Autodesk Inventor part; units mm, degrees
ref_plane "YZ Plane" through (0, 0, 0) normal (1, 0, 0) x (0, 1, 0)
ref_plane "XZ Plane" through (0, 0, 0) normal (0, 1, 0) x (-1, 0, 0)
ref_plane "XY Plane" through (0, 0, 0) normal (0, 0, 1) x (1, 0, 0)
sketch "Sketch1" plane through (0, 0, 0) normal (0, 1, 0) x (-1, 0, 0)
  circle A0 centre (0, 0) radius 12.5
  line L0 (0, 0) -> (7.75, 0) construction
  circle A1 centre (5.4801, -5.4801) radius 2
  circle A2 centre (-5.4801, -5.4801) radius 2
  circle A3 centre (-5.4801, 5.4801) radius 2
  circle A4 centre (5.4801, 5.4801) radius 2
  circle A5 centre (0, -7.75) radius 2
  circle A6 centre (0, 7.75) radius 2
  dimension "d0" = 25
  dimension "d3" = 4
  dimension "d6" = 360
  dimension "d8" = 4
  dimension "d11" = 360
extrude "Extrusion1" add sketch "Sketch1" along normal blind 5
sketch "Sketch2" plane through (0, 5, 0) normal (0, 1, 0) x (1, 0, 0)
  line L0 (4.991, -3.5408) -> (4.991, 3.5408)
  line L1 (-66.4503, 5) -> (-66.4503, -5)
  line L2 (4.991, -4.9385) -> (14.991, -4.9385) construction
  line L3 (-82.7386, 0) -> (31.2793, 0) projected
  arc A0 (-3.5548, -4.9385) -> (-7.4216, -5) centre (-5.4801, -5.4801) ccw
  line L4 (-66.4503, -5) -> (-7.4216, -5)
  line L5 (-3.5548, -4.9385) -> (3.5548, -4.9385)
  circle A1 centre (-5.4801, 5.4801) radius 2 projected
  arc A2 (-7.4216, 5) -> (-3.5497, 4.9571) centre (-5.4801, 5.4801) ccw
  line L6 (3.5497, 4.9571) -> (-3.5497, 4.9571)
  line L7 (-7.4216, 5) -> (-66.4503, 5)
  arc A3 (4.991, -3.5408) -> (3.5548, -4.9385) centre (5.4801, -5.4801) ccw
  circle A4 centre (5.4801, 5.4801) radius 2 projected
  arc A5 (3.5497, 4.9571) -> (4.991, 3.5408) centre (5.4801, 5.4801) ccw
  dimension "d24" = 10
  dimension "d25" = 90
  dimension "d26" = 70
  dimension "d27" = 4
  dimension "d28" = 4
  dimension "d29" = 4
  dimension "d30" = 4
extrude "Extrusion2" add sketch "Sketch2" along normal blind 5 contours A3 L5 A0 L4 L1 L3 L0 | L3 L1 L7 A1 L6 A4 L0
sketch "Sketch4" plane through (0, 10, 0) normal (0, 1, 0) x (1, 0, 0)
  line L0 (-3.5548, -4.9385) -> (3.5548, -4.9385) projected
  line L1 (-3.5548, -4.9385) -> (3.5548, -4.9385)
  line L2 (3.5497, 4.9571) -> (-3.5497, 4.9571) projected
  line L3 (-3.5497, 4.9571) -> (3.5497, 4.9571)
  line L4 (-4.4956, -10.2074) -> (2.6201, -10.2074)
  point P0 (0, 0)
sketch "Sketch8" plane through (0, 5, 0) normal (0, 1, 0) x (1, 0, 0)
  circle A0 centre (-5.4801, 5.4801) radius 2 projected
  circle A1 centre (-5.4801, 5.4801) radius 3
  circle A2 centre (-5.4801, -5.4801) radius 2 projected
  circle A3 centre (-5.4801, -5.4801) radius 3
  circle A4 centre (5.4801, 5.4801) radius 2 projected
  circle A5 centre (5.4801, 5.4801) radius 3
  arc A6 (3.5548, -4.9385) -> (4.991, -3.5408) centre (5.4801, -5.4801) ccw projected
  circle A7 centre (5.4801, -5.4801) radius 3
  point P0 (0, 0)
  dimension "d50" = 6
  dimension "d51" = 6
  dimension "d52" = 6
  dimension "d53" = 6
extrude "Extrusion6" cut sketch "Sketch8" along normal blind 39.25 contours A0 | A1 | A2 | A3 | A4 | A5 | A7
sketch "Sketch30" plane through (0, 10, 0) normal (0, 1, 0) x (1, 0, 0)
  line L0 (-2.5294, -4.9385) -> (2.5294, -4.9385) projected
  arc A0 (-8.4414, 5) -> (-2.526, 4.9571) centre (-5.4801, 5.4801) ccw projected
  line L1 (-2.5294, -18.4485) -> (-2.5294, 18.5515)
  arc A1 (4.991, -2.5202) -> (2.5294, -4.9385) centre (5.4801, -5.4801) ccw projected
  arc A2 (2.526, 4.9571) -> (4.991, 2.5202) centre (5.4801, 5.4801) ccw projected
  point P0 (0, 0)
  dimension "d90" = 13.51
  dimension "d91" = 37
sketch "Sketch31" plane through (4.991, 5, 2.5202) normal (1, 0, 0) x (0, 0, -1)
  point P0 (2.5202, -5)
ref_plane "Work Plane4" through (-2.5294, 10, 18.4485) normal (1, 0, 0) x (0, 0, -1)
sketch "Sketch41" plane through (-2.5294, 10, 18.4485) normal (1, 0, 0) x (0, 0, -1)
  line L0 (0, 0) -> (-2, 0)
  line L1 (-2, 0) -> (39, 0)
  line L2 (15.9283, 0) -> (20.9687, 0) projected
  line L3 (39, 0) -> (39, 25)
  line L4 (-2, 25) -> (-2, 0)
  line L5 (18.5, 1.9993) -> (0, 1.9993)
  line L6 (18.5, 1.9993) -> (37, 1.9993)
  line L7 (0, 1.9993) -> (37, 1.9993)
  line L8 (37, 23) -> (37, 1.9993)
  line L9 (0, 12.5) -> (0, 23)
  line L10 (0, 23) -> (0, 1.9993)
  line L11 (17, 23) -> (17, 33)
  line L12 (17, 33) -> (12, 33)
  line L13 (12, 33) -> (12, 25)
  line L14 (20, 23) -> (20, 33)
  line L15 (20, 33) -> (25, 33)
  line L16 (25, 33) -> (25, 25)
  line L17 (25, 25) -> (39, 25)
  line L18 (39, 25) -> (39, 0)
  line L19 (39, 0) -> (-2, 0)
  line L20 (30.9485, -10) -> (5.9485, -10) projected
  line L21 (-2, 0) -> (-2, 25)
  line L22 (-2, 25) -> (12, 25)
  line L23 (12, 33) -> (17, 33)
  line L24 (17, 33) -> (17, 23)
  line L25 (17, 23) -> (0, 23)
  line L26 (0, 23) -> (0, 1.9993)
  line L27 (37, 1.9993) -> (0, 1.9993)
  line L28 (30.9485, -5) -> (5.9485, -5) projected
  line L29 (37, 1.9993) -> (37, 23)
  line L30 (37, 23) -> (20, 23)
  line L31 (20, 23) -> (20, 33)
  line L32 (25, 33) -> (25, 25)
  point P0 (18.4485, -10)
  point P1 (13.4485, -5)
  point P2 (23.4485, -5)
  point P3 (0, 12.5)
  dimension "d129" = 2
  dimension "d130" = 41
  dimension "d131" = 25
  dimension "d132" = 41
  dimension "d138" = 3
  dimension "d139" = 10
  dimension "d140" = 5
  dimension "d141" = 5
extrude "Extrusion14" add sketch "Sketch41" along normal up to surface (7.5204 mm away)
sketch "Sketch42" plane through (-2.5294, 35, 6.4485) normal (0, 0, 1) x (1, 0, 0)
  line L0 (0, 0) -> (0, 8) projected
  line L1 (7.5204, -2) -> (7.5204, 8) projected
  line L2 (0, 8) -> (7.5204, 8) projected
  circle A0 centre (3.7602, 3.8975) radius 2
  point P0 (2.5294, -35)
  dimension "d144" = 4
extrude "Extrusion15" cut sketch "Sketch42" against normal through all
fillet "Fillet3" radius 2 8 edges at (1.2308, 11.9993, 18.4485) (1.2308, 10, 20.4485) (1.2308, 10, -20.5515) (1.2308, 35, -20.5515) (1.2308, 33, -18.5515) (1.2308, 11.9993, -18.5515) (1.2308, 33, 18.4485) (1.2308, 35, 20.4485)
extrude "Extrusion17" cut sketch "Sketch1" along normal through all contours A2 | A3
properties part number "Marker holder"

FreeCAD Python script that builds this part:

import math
import FreeCAD as App
import Part
import Sketcher

V = App.Vector
Q = App.Units.Quantity


def edges_at(feature, points):
    """Names of the edges that pass closest to the given points."""
    edges = feature.Shape.Edges
    near = lambda p: min(range(len(edges)), key=lambda i: edges[i].distToShape(Part.Vertex(*p))[0])
    return sorted({f"Edge{near(p) + 1}" for p in points})

doc = App.newDocument("Part")
body = doc.addObject("PartDesign::Body", "Body")

# Sketch on XZ plane
sketch1 = doc.addObject("Sketcher::SketchObject", "Sketch")
body.addObject(sketch1)
sketch1.AttachmentSupport = (doc.XZ_Plane, [""])
sketch1.MapMode = "FlatFace"
sketch1.addGeometry(Part.Circle(V(0, 0, 0), V(0, 0, 1), 12.5), False)
sketch1.addGeometry(Part.Circle(V(5.5, -5.5, 0), V(0, 0, 1), 2), False)
sketch1.addGeometry(Part.Circle(V(0, -7.8, 0), V(0, 0, 1), 2), False)
sketch1.addGeometry(Part.Circle(V(-5.5, -5.5, 0), V(0, 0, 1), 2), False)
sketch1.addGeometry(Part.Circle(V(5.5, 5.5, 0), V(0, 0, 1), 2), False)
sketch1.addGeometry(Part.Circle(V(-5.5, 5.5, 0), V(0, 0, 1), 2), False)
sketch1.addGeometry(Part.Circle(V(0, 7.8, 0), V(0, 0, 1), 2), False)
sketch1.addConstraint(Sketcher.Constraint("Coincident", 0, 3, -1, 1))
sketch1.addConstraint(Sketcher.Constraint("Equal", 1, 2))
sketch1.addConstraint(Sketcher.Constraint("Equal", 2, 3))
sketch1.addConstraint(Sketcher.Constraint("Equal", 3, 4))
sketch1.addConstraint(Sketcher.Constraint("Equal", 4, 5))
sketch1.addConstraint(Sketcher.Constraint("Equal", 5, 6))
sketch1.addConstraint(Sketcher.Constraint("Symmetric", 3, 3, 4, 3, -1, 1))
sketch1.addConstraint(Sketcher.Constraint("Symmetric", 1, 3, 5, 3, -1, 1))
sketch1.addConstraint(Sketcher.Constraint("Symmetric", 2, 3, 6, 3, -1, 1))
sketch1.addConstraint(Sketcher.Constraint("Symmetric", 1, 3, 3, 3, -2))
sketch1.addConstraint(Sketcher.Constraint("PointOnObject", 2, 3, -2))
sketch1.addConstraint(Sketcher.Constraint("Diameter", 0, Q("25 mm")))
sketch1.addConstraint(Sketcher.Constraint("Diameter", 1, Q("4 mm")))
sketch1.addConstraint(Sketcher.Constraint("DistanceX", -1, 1, 1, 3, Q("5.48 mm")))
sketch1.addConstraint(Sketcher.Constraint("DistanceY", 1, 3, -1, 1, Q("5.48 mm")))
sketch1.addConstraint(Sketcher.Constraint("DistanceY", 2, 3, -1, 1, Q("7.75 mm")))
pad1 = doc.addObject("PartDesign::Pad", "Pad")
body.addObject(pad1)
pad1.Profile = sketch1
pad1.Length = 5
pad1.Reversed = True

# Sketch on XZ plane
sketch2 = doc.addObject("Sketcher::SketchObject", "Sketch001")
body.addObject(sketch2)
sketch2.AttachmentSupport = (doc.XZ_Plane, [""])
sketch2.MapMode = "FlatFace"
sketch2.AttachmentOffset = App.Placement(V(0, 0, -5), App.Rotation())
sketch2.addGeometry(Part.ArcOfCircle(Part.Circle(V(5.5, 5.5, 0), V(0, 0, 1), 2), math.radians(-164), math.radians(-104)), False)
sketch2.addGeometry(Part.LineSegment(V(5, 3.5, 0), V(5, -3.5, 0)), False)
sketch2.addGeometry(Part.ArcOfCircle(Part.Circle(V(5.5, -5.5, 0), V(0, 0, 1), 2), math.radians(104), math.radians(165)), False)
sketch2.addGeometry(Part.LineSegment(V(3.5, -5, 0), V(-3.5, -5, 0)), False)
sketch2.addGeometry(Part.ArcOfCircle(Part.Circle(V(-5.5, -5.5, 0), V(0, 0, 1), 2), math.radians(15), math.radians(166)), False)
sketch2.addGeometry(Part.LineSegment(V(-7.4, -5, 0), V(-66.5, -5, 0)), False)
sketch2.addGeometry(Part.LineSegment(V(-66.5, -5, 0), V(-66.5, 5, 0)), False)
sketch2.addGeometry(Part.LineSegment(V(-66.5, 5, 0), V(-7.4, 5, 0)), False)
sketch2.addGeometry(Part.ArcOfCircle(Part.Circle(V(-5.5, 5.5, 0), V(0, 0, 1), 2), math.radians(-166), math.radians(-16)), False)
sketch2.addGeometry(Part.LineSegment(V(-3.6, 4.9, 0), V(3.6, 4.9, 0)), False)
sketch2.addConstraint(Sketcher.Constraint("Coincident", 0, 2, 1, 1))
sketch2.addConstraint(Sketcher.Constraint("Coincident", 1, 2, 2, 1))
sketch2.addConstraint(Sketcher.Constraint("Coincident", 2, 2, 3, 1))
sketch2.addConstraint(Sketcher.Constraint("Coincident", 3, 2, 4, 1))
sketch2.addConstraint(Sketcher.Constraint("Coincident", 4, 2, 5, 1))
sketch2.addConstraint(Sketcher.Constraint("Coincident", 5, 2, 6, 1))
sketch2.addConstraint(Sketcher.Constraint("Coincident", 6, 2, 7, 1))
sketch2.addConstraint(Sketcher.Constraint("Coincident", 7, 2, 8, 1))
sketch2.addConstraint(Sketcher.Constraint("Coincident", 8, 2, 9, 1))
sketch2.addConstraint(Sketcher.Constraint("Coincident", 9, 2, 0, 1))
sketch2.addConstraint(Sketcher.Constraint("Vertical", 1))
sketch2.addConstraint(Sketcher.Constraint("Horizontal", 3))
sketch2.addConstraint(Sketcher.Constraint("Horizontal", 5))
sketch2.addConstraint(Sketcher.Constraint("Vertical", 6))
sketch2.addConstraint(Sketcher.Constraint("Horizontal", 7))
sketch2.addConstraint(Sketcher.Constraint("Horizontal", 9))
sketch2.addConstraint(Sketcher.Constraint("Equal", 0, 2))
sketch2.addConstraint(Sketcher.Constraint("Equal", 2, 4))
sketch2.addConstraint(Sketcher.Constraint("Equal", 4, 8))
sketch2.addConstraint(Sketcher.Constraint("Symmetric", 0, 3, 4, 3, -1, 1))
sketch2.addConstraint(Sketcher.Constraint("Symmetric", 2, 3, 8, 3, -1, 1))
sketch2.addConstraint(Sketcher.Constraint("Symmetric", 2, 3, 4, 3, -2))
sketch2.addConstraint(Sketcher.Constraint("Vertical", 4, 2, 7, 2))
sketch2.addConstraint(Sketcher.Constraint("Radius", 0, Q("2 mm")))
sketch2.addConstraint(Sketcher.Constraint("DistanceY", 6, 1, 6, 2, Q("10 mm")))
sketch2.addConstraint(Sketcher.Constraint("DistanceX", 5, 2, 2, 2, Q("70 mm")))
sketch2.addConstraint(Sketcher.Constraint("DistanceX", -1, 1, 0, 3, Q("5.48 mm")))
sketch2.addConstraint(Sketcher.Constraint("DistanceY", -1, 1, 0, 3, Q("5.48 mm")))
sketch2.addConstraint(Sketcher.Constraint("DistanceX", 3, 2, 3, 1, Q("7.0994 mm")))
sketch2.addConstraint(Sketcher.Constraint("DistanceX", 9, 1, 9, 2, Q("7.1096 mm")))
sketch2.addConstraint(Sketcher.Constraint("DistanceY", 1, 2, 1, 1, Q("7.0816 mm")))
pad2 = doc.addObject("PartDesign::Pad", "Pad001")
body.addObject(pad2)
pad2.Profile = sketch2
pad2.Length = 5
pad2.Reversed = True

# Sketch on XZ plane
sketch3 = doc.addObject("Sketcher::SketchObject", "Sketch002")
body.addObject(sketch3)
sketch3.AttachmentSupport = (doc.XZ_Plane, [""])
sketch3.MapMode = "FlatFace"
sketch3.AttachmentOffset = App.Placement(V(0, 0, -5), App.Rotation())
sketch3.addGeometry(Part.Circle(V(-5.5, -5.5, 0), V(0, 0, 1), 3), False)
sketch3.addGeometry(Part.Circle(V(-5.5, 5.5, 0), V(0, 0, 1), 3), False)
sketch3.addGeometry(Part.Circle(V(5.5, -5.5, 0), V(0, 0, 1), 3), False)
sketch3.addGeometry(Part.Circle(V(5.5, 5.5, 0), V(0, 0, 1), 3), False)
sketch3.addConstraint(Sketcher.Constraint("Equal", 0, 1))
sketch3.addConstraint(Sketcher.Constraint("Equal", 1, 2))
sketch3.addConstraint(Sketcher.Constraint("Equal", 2, 3))
sketch3.addConstraint(Sketcher.Constraint("Symmetric", 1, 3, 2, 3, -1, 1))
sketch3.addConstraint(Sketcher.Constraint("Symmetric", 0, 3, 3, 3, -1, 1))
sketch3.addConstraint(Sketcher.Constraint("Symmetric", 0, 3, 2, 3, -2))
sketch3.addConstraint(Sketcher.Constraint("Diameter", 0, Q("6 mm")))
sketch3.addConstraint(Sketcher.Constraint("DistanceX", 0, 3, -1, 1, Q("5.48 mm")))
sketch3.addConstraint(Sketcher.Constraint("DistanceY", 0, 3, -1, 1, Q("5.48 mm")))
pocket1 = doc.addObject("PartDesign::Pocket", "Pocket")
body.addObject(pocket1)
pocket1.Profile = sketch3
pocket1.Length = 39.25

# Sketch on YZ plane
sketch4 = doc.addObject("Sketcher::SketchObject", "Sketch003")
body.addObject(sketch4)
sketch4.AttachmentSupport = (doc.YZ_Plane, [""])
sketch4.MapMode = "FlatFace"
sketch4.AttachmentOffset = App.Placement(V(0, 0, -2.5294), App.Rotation())
sketch4.addGeometry(Part.LineSegment(V(10, 20, 0), V(10, -21, 0)), False)
sketch4.addGeometry(Part.LineSegment(V(10, -21, 0), V(35, -21, 0)), False)
sketch4.addGeometry(Part.LineSegment(V(35, -21, 0), V(35, -7, 0)), False)
sketch4.addGeometry(Part.LineSegment(V(35, -7, 0), V(43, -7, 0)), False)
sketch4.addGeometry(Part.LineSegment(V(43, -7, 0), V(43, -2, 0)), False)
sketch4.addGeometry(Part.LineSegment(V(43, -2, 0), V(33, -2, 0)), False)
sketch4.addGeometry(Part.LineSegment(V(33, -2, 0), V(33, -19, 0)), False)
sketch4.addGeometry(Part.LineSegment(V(33, -19, 0), V(12, -19, 0)), False)
sketch4.addGeometry(Part.LineSegment(V(12, -19, 0), V(12, 18, 0)), False)
sketch4.addGeometry(Part.LineSegment(V(12, 18, 0), V(33, 18, 0)), False)
sketch4.addGeometry(Part.LineSegment(V(33, 18, 0), V(33, 1, 0)), False)
sketch4.addGeometry(Part.LineSegment(V(33, 1, 0), V(43, 1, 0)), False)
sketch4.addGeometry(Part.LineSegment(V(43, 1, 0), V(43, 6, 0)), False)
sketch4.addGeometry(Part.LineSegment(V(43, 6, 0), V(35, 6, 0)), False)
sketch4.addGeometry(Part.LineSegment(V(35, 6, 0), V(35, 20, 0)), False)
sketch4.addGeometry(Part.LineSegment(V(35, 20, 0), V(10, 20, 0)), False)
sketch4.addConstraint(Sketcher.Constraint("Coincident", 0, 2, 1, 1))
sketch4.addConstraint(Sketcher.Constraint("Coincident", 1, 2, 2, 1))
sketch4.addConstraint(Sketcher.Constraint("Coincident", 2, 2, 3, 1))
sketch4.addConstraint(Sketcher.Constraint("Coincident", 3, 2, 4, 1))
sketch4.addConstraint(Sketcher.Constraint("Coincident", 4, 2, 5, 1))
sketch4.addConstraint(Sketcher.Constraint("Coincident", 5, 2, 6, 1))
sketch4.addConstraint(Sketcher.Constraint("Coincident", 6, 2, 7, 1))
sketch4.addConstraint(Sketcher.Constraint("Coincident", 7, 2, 8, 1))
sketch4.addConstraint(Sketcher.Constraint("Coincident", 8, 2, 9, 1))
sketch4.addConstraint(Sketcher.Constraint("Coincident", 9, 2, 10, 1))
sketch4.addConstraint(Sketcher.Constraint("Coincident", 10, 2, 11, 1))
sketch4.addConstraint(Sketcher.Constraint("Coincident", 11, 2, 12, 1))
sketch4.addConstraint(Sketcher.Constraint("Coincident", 12, 2, 13, 1))
sketch4.addConstraint(Sketcher.Constraint("Coincident", 13, 2, 14, 1))
sketch4.addConstraint(Sketcher.Constraint("Coincident", 14, 2, 15, 1))
sketch4.addConstraint(Sketcher.Constraint("Coincident", 15, 2, 0, 1))
sketch4.addConstraint(Sketcher.Constraint("Vertical", 0))
sketch4.addConstraint(Sketcher.Constraint("Horizontal", 1))
sketch4.addConstraint(Sketcher.Constraint("Vertical", 2))
sketch4.addConstraint(Sketcher.Constraint("Horizontal", 3))
sketch4.addConstraint(Sketcher.Constraint("Vertical", 4))
sketch4.addConstraint(Sketcher.Constraint("Horizontal", 5))
sketch4.addConstraint(Sketcher.Constraint("Vertical", 6))
sketch4.addConstraint(Sketcher.Constraint("Horizontal", 7))
sketch4.addConstraint(Sketcher.Constraint("Vertical", 8))
sketch4.addConstraint(Sketcher.Constraint("Horizontal", 9))
sketch4.addConstraint(Sketcher.Constraint("Vertical", 10))
sketch4.addConstraint(Sketcher.Constraint("Horizontal", 11))
sketch4.addConstraint(Sketcher.Constraint("Vertical", 12))
sketch4.addConstraint(Sketcher.Constraint("Horizontal", 13))
sketch4.addConstraint(Sketcher.Constraint("Vertical", 14))
sketch4.addConstraint(Sketcher.Constraint("Horizontal", 15))
sketch4.addConstraint(Sketcher.Constraint("Vertical", 6, 2, 9, 2))
sketch4.addConstraint(Sketcher.Constraint("Vertical", 4, 2, 11, 2))
sketch4.addConstraint(Sketcher.Constraint("Vertical", 2, 2, 13, 2))
sketch4.addConstraint(Sketcher.Constraint("Equal", 6, 10))
sketch4.addConstraint(Sketcher.Constraint("Equal", 4, 12))
sketch4.addConstraint(Sketcher.Constraint("Equal", 2, 14))
sketch4.addConstraint(Sketcher.Constraint("DistanceX", 1, 1, 1, 2, Q("25 mm")))
sketch4.addConstraint(Sketcher.Constraint("DistanceX", 5, 2, 5, 1, Q("10 mm")))
sketch4.addConstraint(Sketcher.Constraint("DistanceY", 0, 2, 0, 1, Q("41 mm")))
sketch4.addConstraint(Sketcher.Constraint("DistanceY", 4, 1, 4, 2, Q("5 mm")))
sketch4.addConstraint(Sketcher.Constraint("DistanceX", -1, 1, 0, 2, Q("10 mm")))
sketch4.addConstraint(Sketcher.Constraint("DistanceX", 5, 2, 2, 2, Q("2 mm")))
sketch4.addConstraint(Sketcher.Constraint("DistanceY", 1, 2, 6, 2, Q("2 mm")))
sketch4.addConstraint(Sketcher.Constraint("DistanceY", 2, 2, 8, 2, Q("25 mm")))
sketch4.addConstraint(Sketcher.Constraint("DistanceX", 7, 2, 7, 1, Q("21.0007 mm")))
sketch4.addConstraint(Sketcher.Constraint("DistanceY", 0, 2, -1, 1, Q("20.5515 mm")))
pad3 = doc.addObject("PartDesign::Pad", "Pad002")
body.addObject(pad3)
pad3.Profile = sketch4
pad3.Length = 7.5204

# Sketch on XY plane
sketch5 = doc.addObject("Sketcher::SketchObject", "Sketch004")
body.addObject(sketch5)
sketch5.AttachmentSupport = (doc.XY_Plane, [""])
sketch5.MapMode = "FlatFace"
sketch5.AttachmentOffset = App.Placement(V(0, 0, 6.4485), App.Rotation())
sketch5.addGeometry(Part.Circle(V(1.2, 38.9, 0), V(0, 0, 1), 2), False)
sketch5.addConstraint(Sketcher.Constraint("Diameter", 0, Q("4 mm")))
sketch5.addConstraint(Sketcher.Constraint("DistanceX", -1, 1, 0, 3, Q("1.2308 mm")))
sketch5.addConstraint(Sketcher.Constraint("DistanceY", -1, 1, 0, 3, Q("38.8975 mm")))
pocket2 = doc.addObject("PartDesign::Pocket", "Pocket001")
body.addObject(pocket2)
pocket2.Profile = sketch5
pocket2.Type = "ThroughAll"
doc.recompute()

fillet = doc.addObject("PartDesign::Fillet", "Fillet")
body.addObject(fillet)
fillet.Base = (pocket2, edges_at(pocket2, [
    (1.231, 11.999, 18.448),
    (1.231, 10, 20.448),
    (1.231, 10, -20.552),
    (1.231, 35, -20.552),
    (1.231, 33, -18.552),
    (1.231, 11.999, -18.552),
    (1.231, 33, 18.448),
    (1.231, 35, 20.448),
]))
fillet.Radius = 2

# Sketch on XZ plane
sketch6 = doc.addObject("Sketcher::SketchObject", "Sketch005")
body.addObject(sketch6)
sketch6.AttachmentSupport = (doc.XZ_Plane, [""])
sketch6.MapMode = "FlatFace"
sketch6.addGeometry(Part.Circle(V(5.5, -5.5, 0), V(0, 0, 1), 2), False)
sketch6.addGeometry(Part.Circle(V(5.5, 5.5, 0), V(0, 0, 1), 2), False)
sketch6.addConstraint(Sketcher.Constraint("Equal", 0, 1))
sketch6.addConstraint(Sketcher.Constraint("Symmetric", 0, 3, 1, 3, -1))
sketch6.addConstraint(Sketcher.Constraint("Diameter", 0, Q("4 mm")))
sketch6.addConstraint(Sketcher.Constraint("DistanceX", -1, 1, 0, 3, Q("5.48 mm")))
sketch6.addConstraint(Sketcher.Constraint("DistanceY", 0, 3, -1, 1, Q("5.48 mm")))
pocket3 = doc.addObject("PartDesign::Pocket", "Pocket002")
body.addObject(pocket3)
pocket3.Profile = sketch6
pocket3.Type = "ThroughAll"

doc.recompute()
